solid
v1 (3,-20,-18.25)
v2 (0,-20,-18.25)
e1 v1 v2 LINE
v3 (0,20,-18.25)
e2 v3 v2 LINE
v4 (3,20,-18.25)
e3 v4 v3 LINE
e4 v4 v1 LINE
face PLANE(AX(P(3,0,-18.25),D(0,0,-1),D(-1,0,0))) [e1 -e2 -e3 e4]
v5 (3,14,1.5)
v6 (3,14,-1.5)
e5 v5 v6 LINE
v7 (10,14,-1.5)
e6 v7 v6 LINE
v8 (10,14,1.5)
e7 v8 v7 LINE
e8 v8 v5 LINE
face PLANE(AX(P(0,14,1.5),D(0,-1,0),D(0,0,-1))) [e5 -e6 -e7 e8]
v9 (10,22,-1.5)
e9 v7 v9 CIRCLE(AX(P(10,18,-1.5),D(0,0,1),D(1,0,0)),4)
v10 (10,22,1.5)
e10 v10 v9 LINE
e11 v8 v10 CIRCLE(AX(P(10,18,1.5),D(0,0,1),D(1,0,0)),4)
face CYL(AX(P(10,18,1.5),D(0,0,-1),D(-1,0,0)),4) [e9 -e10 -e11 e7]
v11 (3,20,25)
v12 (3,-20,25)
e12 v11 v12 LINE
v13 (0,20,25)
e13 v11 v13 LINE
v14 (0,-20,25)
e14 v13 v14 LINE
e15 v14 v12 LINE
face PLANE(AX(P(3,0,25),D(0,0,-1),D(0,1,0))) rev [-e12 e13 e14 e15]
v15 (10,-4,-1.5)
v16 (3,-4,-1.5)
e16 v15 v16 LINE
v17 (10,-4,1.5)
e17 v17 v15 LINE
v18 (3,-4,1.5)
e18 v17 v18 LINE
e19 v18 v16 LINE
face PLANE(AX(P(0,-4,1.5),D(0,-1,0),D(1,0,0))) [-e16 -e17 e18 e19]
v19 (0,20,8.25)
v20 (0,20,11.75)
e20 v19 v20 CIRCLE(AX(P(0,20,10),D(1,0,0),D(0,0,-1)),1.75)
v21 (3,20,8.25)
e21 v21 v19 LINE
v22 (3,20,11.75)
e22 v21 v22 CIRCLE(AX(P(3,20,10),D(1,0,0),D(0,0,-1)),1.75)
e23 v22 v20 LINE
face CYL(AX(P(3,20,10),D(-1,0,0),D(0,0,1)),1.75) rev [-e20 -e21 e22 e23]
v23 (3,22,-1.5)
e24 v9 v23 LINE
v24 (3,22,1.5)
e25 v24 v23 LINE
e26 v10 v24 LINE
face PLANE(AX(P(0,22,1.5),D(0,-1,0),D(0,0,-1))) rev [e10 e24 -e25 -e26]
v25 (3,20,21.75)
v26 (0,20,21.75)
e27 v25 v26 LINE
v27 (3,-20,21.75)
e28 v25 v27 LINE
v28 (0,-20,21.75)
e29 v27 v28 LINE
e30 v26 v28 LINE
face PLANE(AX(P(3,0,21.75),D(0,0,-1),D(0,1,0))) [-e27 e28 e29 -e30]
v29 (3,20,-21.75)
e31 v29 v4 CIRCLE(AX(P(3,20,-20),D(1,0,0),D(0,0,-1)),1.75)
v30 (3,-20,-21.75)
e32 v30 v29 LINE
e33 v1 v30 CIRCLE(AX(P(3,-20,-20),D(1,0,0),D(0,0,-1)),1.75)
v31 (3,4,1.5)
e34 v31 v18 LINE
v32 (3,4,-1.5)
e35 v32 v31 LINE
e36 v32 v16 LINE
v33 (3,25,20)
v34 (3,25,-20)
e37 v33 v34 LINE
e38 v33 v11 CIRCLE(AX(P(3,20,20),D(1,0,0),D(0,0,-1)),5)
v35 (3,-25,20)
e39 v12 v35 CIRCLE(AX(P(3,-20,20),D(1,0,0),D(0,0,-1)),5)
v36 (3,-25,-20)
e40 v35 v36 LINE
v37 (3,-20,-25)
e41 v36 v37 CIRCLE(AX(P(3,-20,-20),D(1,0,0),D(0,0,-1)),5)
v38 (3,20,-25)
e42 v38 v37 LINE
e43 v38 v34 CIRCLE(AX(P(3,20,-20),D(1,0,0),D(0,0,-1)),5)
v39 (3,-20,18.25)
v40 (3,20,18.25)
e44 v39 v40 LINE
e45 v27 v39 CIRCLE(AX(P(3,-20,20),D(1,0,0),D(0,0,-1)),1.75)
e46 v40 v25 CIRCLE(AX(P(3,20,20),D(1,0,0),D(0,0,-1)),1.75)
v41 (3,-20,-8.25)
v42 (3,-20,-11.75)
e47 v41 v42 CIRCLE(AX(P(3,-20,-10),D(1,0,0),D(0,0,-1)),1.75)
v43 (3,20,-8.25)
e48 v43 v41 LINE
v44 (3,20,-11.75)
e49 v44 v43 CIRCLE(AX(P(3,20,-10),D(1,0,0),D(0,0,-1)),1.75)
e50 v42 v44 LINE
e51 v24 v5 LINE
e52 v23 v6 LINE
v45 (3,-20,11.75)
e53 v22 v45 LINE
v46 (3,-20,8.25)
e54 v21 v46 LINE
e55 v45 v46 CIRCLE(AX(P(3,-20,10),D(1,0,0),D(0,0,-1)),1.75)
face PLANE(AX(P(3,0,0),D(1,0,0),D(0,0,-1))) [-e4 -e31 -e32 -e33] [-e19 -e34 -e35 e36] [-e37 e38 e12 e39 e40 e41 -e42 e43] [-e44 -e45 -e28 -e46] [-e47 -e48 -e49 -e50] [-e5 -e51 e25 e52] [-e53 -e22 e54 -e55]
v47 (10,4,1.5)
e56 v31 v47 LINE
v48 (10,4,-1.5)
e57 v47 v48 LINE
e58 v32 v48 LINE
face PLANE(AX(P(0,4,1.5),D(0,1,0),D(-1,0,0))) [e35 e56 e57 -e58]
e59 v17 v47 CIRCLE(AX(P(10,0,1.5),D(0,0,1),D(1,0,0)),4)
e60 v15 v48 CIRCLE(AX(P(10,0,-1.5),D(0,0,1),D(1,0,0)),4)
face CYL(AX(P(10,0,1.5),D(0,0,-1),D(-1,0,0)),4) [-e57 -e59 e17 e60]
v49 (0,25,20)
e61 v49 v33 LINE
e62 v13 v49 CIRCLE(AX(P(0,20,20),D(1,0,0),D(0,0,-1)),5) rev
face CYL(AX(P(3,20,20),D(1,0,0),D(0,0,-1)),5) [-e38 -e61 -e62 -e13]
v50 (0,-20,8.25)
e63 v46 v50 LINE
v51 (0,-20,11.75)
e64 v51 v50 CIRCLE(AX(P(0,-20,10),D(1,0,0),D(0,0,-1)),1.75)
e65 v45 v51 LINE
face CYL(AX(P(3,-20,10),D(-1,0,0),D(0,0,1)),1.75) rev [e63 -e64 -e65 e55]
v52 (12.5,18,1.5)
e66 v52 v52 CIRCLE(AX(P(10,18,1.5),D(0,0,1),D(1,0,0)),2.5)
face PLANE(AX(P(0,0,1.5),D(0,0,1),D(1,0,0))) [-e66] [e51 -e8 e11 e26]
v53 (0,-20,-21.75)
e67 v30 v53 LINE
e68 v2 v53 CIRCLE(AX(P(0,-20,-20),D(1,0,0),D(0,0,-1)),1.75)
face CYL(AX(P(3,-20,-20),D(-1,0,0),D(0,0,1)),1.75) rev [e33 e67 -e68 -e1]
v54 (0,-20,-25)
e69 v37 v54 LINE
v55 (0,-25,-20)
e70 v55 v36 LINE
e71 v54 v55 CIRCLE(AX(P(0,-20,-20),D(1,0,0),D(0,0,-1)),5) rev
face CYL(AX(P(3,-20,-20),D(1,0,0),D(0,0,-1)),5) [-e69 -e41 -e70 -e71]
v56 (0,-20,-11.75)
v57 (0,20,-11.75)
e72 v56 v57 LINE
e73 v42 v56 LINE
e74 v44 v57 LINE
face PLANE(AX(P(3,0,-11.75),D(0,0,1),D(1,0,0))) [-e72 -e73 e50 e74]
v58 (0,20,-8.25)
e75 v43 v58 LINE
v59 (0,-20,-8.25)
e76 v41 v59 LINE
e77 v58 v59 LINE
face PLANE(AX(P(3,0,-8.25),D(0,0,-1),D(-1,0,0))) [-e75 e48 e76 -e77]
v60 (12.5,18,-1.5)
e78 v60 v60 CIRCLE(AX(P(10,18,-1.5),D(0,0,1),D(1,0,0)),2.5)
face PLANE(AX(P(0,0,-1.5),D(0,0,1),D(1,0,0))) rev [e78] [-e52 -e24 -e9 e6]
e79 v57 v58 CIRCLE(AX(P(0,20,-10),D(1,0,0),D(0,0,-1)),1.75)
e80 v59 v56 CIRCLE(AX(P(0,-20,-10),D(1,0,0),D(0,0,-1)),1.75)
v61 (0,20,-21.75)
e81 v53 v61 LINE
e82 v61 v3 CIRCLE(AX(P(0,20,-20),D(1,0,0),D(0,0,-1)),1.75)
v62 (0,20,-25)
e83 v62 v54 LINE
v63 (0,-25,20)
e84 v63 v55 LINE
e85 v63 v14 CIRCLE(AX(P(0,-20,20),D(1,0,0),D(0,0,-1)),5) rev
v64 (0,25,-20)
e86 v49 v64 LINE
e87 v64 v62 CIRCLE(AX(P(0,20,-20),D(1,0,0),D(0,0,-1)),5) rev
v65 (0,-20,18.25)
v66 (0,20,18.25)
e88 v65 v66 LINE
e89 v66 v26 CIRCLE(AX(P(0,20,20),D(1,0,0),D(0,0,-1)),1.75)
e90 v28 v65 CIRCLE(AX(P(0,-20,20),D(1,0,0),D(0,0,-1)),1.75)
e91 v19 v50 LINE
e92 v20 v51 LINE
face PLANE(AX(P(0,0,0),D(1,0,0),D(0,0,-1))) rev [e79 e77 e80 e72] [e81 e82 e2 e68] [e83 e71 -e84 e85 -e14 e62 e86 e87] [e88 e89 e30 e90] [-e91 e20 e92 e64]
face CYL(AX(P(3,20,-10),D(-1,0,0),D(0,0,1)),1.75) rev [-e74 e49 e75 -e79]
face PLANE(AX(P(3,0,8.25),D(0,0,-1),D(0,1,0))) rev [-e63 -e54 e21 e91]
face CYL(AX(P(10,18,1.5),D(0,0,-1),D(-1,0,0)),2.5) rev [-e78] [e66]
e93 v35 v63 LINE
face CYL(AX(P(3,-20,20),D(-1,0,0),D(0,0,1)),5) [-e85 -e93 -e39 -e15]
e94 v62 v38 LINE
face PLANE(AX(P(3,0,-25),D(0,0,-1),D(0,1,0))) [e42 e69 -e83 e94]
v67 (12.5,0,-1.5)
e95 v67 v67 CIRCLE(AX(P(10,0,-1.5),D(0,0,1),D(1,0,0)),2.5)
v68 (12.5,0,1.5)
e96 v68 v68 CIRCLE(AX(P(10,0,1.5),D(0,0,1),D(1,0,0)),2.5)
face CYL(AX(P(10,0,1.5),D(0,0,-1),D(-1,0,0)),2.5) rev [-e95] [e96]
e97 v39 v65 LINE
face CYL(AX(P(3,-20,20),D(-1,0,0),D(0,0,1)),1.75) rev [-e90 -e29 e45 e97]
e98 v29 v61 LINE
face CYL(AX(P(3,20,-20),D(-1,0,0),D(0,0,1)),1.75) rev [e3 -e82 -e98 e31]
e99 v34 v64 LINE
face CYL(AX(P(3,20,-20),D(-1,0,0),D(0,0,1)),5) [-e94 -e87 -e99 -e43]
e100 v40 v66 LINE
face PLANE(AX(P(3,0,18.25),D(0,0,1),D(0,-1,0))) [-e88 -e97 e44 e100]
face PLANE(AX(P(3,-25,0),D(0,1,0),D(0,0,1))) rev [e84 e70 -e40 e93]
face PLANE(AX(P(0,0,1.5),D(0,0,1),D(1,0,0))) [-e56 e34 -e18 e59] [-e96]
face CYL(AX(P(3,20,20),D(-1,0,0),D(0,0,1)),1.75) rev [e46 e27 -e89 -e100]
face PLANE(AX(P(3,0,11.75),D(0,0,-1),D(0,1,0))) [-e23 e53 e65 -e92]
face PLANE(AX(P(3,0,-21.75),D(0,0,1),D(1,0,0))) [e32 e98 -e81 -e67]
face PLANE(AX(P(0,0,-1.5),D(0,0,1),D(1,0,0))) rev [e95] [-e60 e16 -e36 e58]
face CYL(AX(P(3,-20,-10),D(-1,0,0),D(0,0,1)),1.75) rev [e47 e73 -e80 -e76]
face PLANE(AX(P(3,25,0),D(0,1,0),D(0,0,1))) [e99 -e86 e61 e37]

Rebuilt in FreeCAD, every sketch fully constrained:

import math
import FreeCAD as App
import Part
import Sketcher
from FreeCAD import Vector


def edges_at(feature, points):
    """Names of the edges that pass closest to the given points."""
    edges = feature.Shape.Edges
    near = lambda p: min(range(len(edges)), key=lambda i: edges[i].distToShape(Part.Vertex(*p))[0])
    return sorted({f"Edge{near(p) + 1}" for p in points})

doc = App.newDocument("Part")
body = doc.addObject("PartDesign::Body", "Body")

# Sketch on YZ plane
sketch1 = body.newObject("Sketcher::SketchObject", "Sketch")
sketch1.AttachmentSupport = (doc.getObject("YZ_Plane"), [""])
sketch1.MapMode = "FlatFace"
sketch1.addGeometry([
    Part.LineSegment(Vector(25, 25, 0), Vector(-25, 25, 0)),  # 0
    Part.LineSegment(Vector(-25, 25, 0), Vector(-25, -25, 0)),  # 1
    Part.LineSegment(Vector(-25, -25, 0), Vector(25, -25, 0)),  # 2
    Part.LineSegment(Vector(25, -25, 0), Vector(25, 25, 0)),  # 3
    Part.ArcOfCircle(Part.Circle(Vector(-20, 20, 0), Vector(0, 0, 1), 1.8), math.radians(90), math.radians(270)),  # 4
    Part.LineSegment(Vector(-20, 21.8, 0), Vector(20, 21.8, 0)),  # 5
    Part.ArcOfCircle(Part.Circle(Vector(20, 20, 0), Vector(0, 0, 1), 1.8), math.radians(-90), math.radians(90)),  # 6
    Part.LineSegment(Vector(20, 18.2, 0), Vector(-20, 18.2, 0)),  # 7
    Part.ArcOfCircle(Part.Circle(Vector(-20, 10, 0), Vector(0, 0, 1), 1.8), math.radians(90), math.radians(270)),  # 8
    Part.LineSegment(Vector(-20, 11.8, 0), Vector(20, 11.8, 0)),  # 9
    Part.ArcOfCircle(Part.Circle(Vector(20, 10, 0), Vector(0, 0, 1), 1.8), math.radians(-90), math.radians(90)),  # 10
    Part.LineSegment(Vector(20, 8.2, 0), Vector(-20, 8.2, 0)),  # 11
    Part.ArcOfCircle(Part.Circle(Vector(-20, -10, 0), Vector(0, 0, 1), 1.8), math.radians(90), math.radians(270)),  # 12
    Part.LineSegment(Vector(-20, -8.2, 0), Vector(20, -8.2, 0)),  # 13
    Part.ArcOfCircle(Part.Circle(Vector(20, -10, 0), Vector(0, 0, 1), 1.8), math.radians(-90), math.radians(90)),  # 14
    Part.LineSegment(Vector(20, -11.8, 0), Vector(-20, -11.8, 0)),  # 15
    Part.ArcOfCircle(Part.Circle(Vector(-20, -20, 0), Vector(0, 0, 1), 1.8), math.radians(90), math.radians(270)),  # 16
    Part.LineSegment(Vector(-20, -18.2, 0), Vector(20, -18.2, 0)),  # 17
    Part.ArcOfCircle(Part.Circle(Vector(20, -20, 0), Vector(0, 0, 1), 1.8), math.radians(-90), math.radians(90)),  # 18
    Part.LineSegment(Vector(20, -21.8, 0), Vector(-20, -21.8, 0)),  # 19
], False)
sketch1.addConstraint([
    Sketcher.Constraint("Coincident", 0, 2, 1, 1),
    Sketcher.Constraint("Coincident", 1, 2, 2, 1),
    Sketcher.Constraint("Coincident", 2, 2, 3, 1),
    Sketcher.Constraint("Coincident", 3, 2, 0, 1),
    Sketcher.Constraint("Tangent", 4, 1, 5, 1),
    Sketcher.Constraint("Tangent", 5, 2, 6, 2),
    Sketcher.Constraint("Tangent", 6, 1, 7, 1),
    Sketcher.Constraint("Tangent", 7, 2, 4, 2),
    Sketcher.Constraint("Tangent", 8, 1, 9, 1),
    Sketcher.Constraint("Tangent", 9, 2, 10, 2),
    Sketcher.Constraint("Tangent", 10, 1, 11, 1),
    Sketcher.Constraint("Tangent", 11, 2, 8, 2),
    Sketcher.Constraint("Tangent", 12, 1, 13, 1),
    Sketcher.Constraint("Tangent", 13, 2, 14, 2),
    Sketcher.Constraint("Tangent", 14, 1, 15, 1),
    Sketcher.Constraint("Tangent", 15, 2, 12, 2),
    Sketcher.Constraint("Tangent", 16, 1, 17, 1),
    Sketcher.Constraint("Tangent", 17, 2, 18, 2),
    Sketcher.Constraint("Tangent", 18, 1, 19, 1),
    Sketcher.Constraint("Tangent", 19, 2, 16, 2),
    Sketcher.Constraint("Horizontal", 0),
    Sketcher.Constraint("Vertical", 1),
    Sketcher.Constraint("Horizontal", 2),
    Sketcher.Constraint("Vertical", 3),
    Sketcher.Constraint("Horizontal", 5),
    Sketcher.Constraint("Horizontal", 7),
    Sketcher.Constraint("Horizontal", 9),
    Sketcher.Constraint("Horizontal", 11),
    Sketcher.Constraint("Horizontal", 13),
    Sketcher.Constraint("Horizontal", 15),
    Sketcher.Constraint("Horizontal", 17),
    Sketcher.Constraint("Horizontal", 19),
    Sketcher.Constraint("Equal", 6, 8),
    Sketcher.Constraint("Equal", 10, 12),
    Sketcher.Constraint("Equal", 14, 16),
    Sketcher.Constraint("Symmetric", 10, 3, 12, 3, -1, 1),
    Sketcher.Constraint("Symmetric", 6, 3, 16, 3, -1, 1),
    Sketcher.Constraint("Symmetric", 0, 2, 2, 2, -1, 1),
    Sketcher.Constraint("Vertical", 4, 3, 8, 3),
    Sketcher.Constraint("Vertical", 6, 3, 10, 3),
    Sketcher.Constraint("Vertical", 8, 3, 12, 3),
    Sketcher.Constraint("Vertical", 10, 3, 14, 3),
    Sketcher.Constraint("Vertical", 14, 3, 18, 3),
    Sketcher.Constraint("Equal", 2, 1),
    Sketcher.Constraint("DistanceX", 0, 2, 0, 1, 50.0),
    Sketcher.Constraint("DistanceX", 5, 1, 5, 2, 40.0),
    Sketcher.Constraint("Radius", 4, 1.75),
    Sketcher.Constraint("DistanceY", -1, 1, 4, 3, 20.0),
    Sketcher.Constraint("DistanceY", -1, 1, 8, 3, 10.0),
])
pad1 = body.newObject("PartDesign::Pad", "Pad")
pad1.Profile = sketch1
pad1.Length = 3

# Sketch on XY plane
sketch2 = body.newObject("Sketcher::SketchObject", "Sketch001")
sketch2.AttachmentSupport = (doc.getObject("XY_Plane"), [""])
sketch2.MapMode = "FlatFace"
sketch2.addGeometry([
    Part.LineSegment(Vector(0, 14, 0), Vector(10, 14, 0)),  # 0
    Part.ArcOfCircle(Part.Circle(Vector(10, 18, 0), Vector(0, 0, 1), 4), math.radians(-90), math.radians(90)),  # 1
    Part.LineSegment(Vector(10, 22, 0), Vector(0, 22, 0)),  # 2
    Part.LineSegment(Vector(0, 22, 0), Vector(0, 14, 0)),  # 3
    Part.Circle(Vector(10, 18, 0), Vector(0, 0, 1), 2.5),  # 4
    Part.LineSegment(Vector(10, 4, 0), Vector(0, 4, 0)),  # 5
    Part.LineSegment(Vector(0, 4, 0), Vector(0, -4, 0)),  # 6
    Part.LineSegment(Vector(0, -4, 0), Vector(10, -4, 0)),  # 7
    Part.ArcOfCircle(Part.Circle(Vector(10, 0, 0), Vector(0, 0, 1), 4), math.radians(-90), math.radians(90)),  # 8
    Part.Circle(Vector(10, 0, 0), Vector(0, 0, 1), 2.5),  # 9
], False)
sketch2.addConstraint([
    Sketcher.Constraint("Tangent", 0, 2, 1, 1),
    Sketcher.Constraint("Tangent", 1, 2, 2, 1),
    Sketcher.Constraint("Coincident", 2, 2, 3, 1),
    Sketcher.Constraint("Coincident", 3, 2, 0, 1),
    Sketcher.Constraint("Coincident", 5, 2, 6, 1),
    Sketcher.Constraint("Coincident", 6, 2, 7, 1),
    Sketcher.Constraint("Tangent", 7, 2, 8, 1),
    Sketcher.Constraint("Tangent", 8, 2, 5, 1),
    Sketcher.Constraint("Horizontal", 0),
    Sketcher.Constraint("Horizontal", 2),
    Sketcher.Constraint("Vertical", 3),
    Sketcher.Constraint("Horizontal", 5),
    Sketcher.Constraint("Vertical", 6),
    Sketcher.Constraint("Horizontal", 7),
    Sketcher.Constraint("Coincident", 4, 3, 1, 3),
    Sketcher.Constraint("Coincident", 9, 3, 8, 3),
    Sketcher.Constraint("Equal", 1, 8),
    Sketcher.Constraint("Equal", 4, 9),
    Sketcher.Constraint("Symmetric", 5, 2, 6, 2, -1, 1),
    Sketcher.Constraint("PointOnObject", 2, 2, -2),
    Sketcher.Constraint("Vertical", 4, 3, 8, 3),
    Sketcher.Constraint("Diameter", 4, 5.0),
    Sketcher.Constraint("Radius", 1, 4.0),
    Sketcher.Constraint("DistanceX", 0, 1, 0, 2, 10.0),
    Sketcher.Constraint("DistanceY", -1, 1, 1, 3, 18.0),
])
pad2 = body.newObject("PartDesign::Pad", "Pad001")
pad2.Profile = sketch2
pad2.Length = 3
pad2.Midplane = True
doc.recompute()

fillet = body.newObject("PartDesign::Fillet", "Fillet")
fillet.Base = (pad2, edges_at(pad2, [
    (1.5, -25, -25),
    (1.5, -25, 25),
    (1.5, 25, 25),
    (1.5, 25, -25),
]))
fillet.Radius = 5

doc.recompute()
